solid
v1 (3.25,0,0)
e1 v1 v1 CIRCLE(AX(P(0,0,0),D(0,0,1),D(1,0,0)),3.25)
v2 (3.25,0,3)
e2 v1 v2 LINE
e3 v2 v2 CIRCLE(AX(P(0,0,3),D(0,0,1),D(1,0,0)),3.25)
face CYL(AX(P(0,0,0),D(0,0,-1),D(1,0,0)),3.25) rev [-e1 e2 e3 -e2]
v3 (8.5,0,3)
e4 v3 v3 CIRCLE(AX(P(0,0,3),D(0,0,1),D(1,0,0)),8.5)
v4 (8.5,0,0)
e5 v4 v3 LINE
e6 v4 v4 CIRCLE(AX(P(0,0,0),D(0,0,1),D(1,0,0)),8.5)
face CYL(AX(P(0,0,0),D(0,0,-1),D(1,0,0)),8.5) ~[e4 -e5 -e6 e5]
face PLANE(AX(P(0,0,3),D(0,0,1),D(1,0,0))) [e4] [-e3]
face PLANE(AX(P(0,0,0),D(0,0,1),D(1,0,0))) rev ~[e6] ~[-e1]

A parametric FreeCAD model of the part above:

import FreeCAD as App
import Part
import Sketcher

V = App.Vector

doc = App.newDocument("Part")
body = doc.addObject("PartDesign::Body", "Body")

sketch1 = body.newObject("Sketcher::SketchObject", "Sketch")
sketch1.AttachmentSupport = (doc.getObject("XY_Plane"), [""])
sketch1.MapMode = "FlatFace"
sketch1.addGeometry(Part.Circle(V(0, 0, 0), V(0, 0, 1), 8.5), False)
sketch1.addGeometry(Part.Circle(V(0, 0, 0), V(0, 0, 1), 3.2), False)
sketch1.addConstraint(Sketcher.Constraint("Coincident", 0, 3, -1, 1))
sketch1.addConstraint(Sketcher.Constraint("Coincident", 1, 3, -1, 1))
sketch1.addConstraint(Sketcher.Constraint("Diameter", 0, 17.0))
sketch1.addConstraint(Sketcher.Constraint("Diameter", 1, 6.5))
pad1 = body.newObject("PartDesign::Pad", "Pad")
pad1.Profile = sketch1
pad1.Length = 3

doc.recompute()
